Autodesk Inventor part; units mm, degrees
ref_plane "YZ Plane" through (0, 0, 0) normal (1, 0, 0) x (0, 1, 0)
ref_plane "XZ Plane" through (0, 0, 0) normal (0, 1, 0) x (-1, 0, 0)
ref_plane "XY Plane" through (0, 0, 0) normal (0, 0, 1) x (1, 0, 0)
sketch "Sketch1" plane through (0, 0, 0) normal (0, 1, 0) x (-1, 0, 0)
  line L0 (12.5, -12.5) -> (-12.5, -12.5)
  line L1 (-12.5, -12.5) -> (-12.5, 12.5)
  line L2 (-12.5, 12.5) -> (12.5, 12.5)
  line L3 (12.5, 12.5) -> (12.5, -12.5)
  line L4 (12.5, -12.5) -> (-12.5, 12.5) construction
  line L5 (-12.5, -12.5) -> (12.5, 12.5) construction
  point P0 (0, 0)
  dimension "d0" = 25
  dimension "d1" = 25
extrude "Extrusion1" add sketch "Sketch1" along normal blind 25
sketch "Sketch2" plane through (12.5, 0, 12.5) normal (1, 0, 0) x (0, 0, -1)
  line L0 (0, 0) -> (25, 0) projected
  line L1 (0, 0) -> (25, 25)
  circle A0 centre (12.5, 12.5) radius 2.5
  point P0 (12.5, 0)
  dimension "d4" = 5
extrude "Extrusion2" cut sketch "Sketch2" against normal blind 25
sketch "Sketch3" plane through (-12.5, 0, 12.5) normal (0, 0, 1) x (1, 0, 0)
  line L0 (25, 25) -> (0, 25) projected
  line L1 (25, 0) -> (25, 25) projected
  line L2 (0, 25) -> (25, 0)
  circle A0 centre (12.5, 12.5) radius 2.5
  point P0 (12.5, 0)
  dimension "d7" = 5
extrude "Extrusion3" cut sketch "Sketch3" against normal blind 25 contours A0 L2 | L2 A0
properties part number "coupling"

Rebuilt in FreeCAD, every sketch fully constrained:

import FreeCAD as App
import Part
import Sketcher


def add_polygon(sketch, points):
    """Adds a closed chain of lines whose ends are joined by coincident constraints."""
    first, n = sketch.GeometryCount, len(points)
    for a, b in zip(points, points[1:] + points[:1]):
        sketch.addGeometry(Part.LineSegment(App.Vector(*a, 0), App.Vector(*b, 0)), False)
    for i in range(n):
        sketch.addConstraint(Sketcher.Constraint("Coincident", first + i, 2, first + (i + 1) % n, 1))

doc = App.newDocument("Part")
body = doc.addObject("PartDesign::Body", "Body")

# Sketch on XZ plane
sketch1 = doc.addObject("Sketcher::SketchObject", "Sketch")
body.addObject(sketch1)
sketch1.AttachmentSupport = (doc.XZ_Plane, [""])
sketch1.MapMode = "FlatFace"
add_polygon(sketch1, [(12.5, -12.5), (-12.5, -12.5), (-12.5, 12.5), (12.5, 12.5)])  # lines 0-3
sketch1.addConstraint([
    Sketcher.Constraint("Horizontal", 0),
    Sketcher.Constraint("Vertical", 1),
    Sketcher.Constraint("Horizontal", 2),
    Sketcher.Constraint("Vertical", 3),
    Sketcher.Constraint("Symmetric", 0, 2, 2, 2, -1, 1),
    Sketcher.Constraint("Equal", 2, 1),
    Sketcher.Constraint("DistanceX", 0, 2, 0, 1, 25.0),
])
pad1 = doc.addObject("PartDesign::Pad", "Pad")
body.addObject(pad1)
pad1.Profile = sketch1
pad1.Length = 25
pad1.Reversed = True

# Sketch on YZ plane
sketch2 = doc.addObject("Sketcher::SketchObject", "Sketch001")
body.addObject(sketch2)
sketch2.AttachmentSupport = (doc.YZ_Plane, [""])
sketch2.MapMode = "FlatFace"
sketch2.AttachmentOffset = App.Placement(App.Vector(0, 0, 12.5), App.Rotation())
sketch2.addGeometry(Part.Circle(App.Vector(12.5, 0, 0), App.Vector(0, 0, 1), 2.5), False)
sketch2.addConstraint([
    Sketcher.Constraint("PointOnObject", 0, 3, -1),
    Sketcher.Constraint("Diameter", 0, 5.0),
    Sketcher.Constraint("DistanceX", -1, 1, 0, 3, 12.5),
])
pocket1 = doc.addObject("PartDesign::Pocket", "Pocket")
body.addObject(pocket1)
pocket1.Profile = sketch2
pocket1.Length = 25

# Sketch on XY plane
sketch3 = doc.addObject("Sketcher::SketchObject", "Sketch002")
body.addObject(sketch3)
sketch3.AttachmentSupport = (doc.XY_Plane, [""])
sketch3.MapMode = "FlatFace"
sketch3.AttachmentOffset = App.Placement(App.Vector(0, 0, 12.5), App.Rotation())
sketch3.addGeometry(Part.Circle(App.Vector(0, 12.5, 0), App.Vector(0, 0, 1), 2.5), False)
sketch3.addConstraint([
    Sketcher.Constraint("PointOnObject", 0, 3, -2),
    Sketcher.Constraint("Diameter", 0, 5.0),
    Sketcher.Constraint("DistanceY", -1, 1, 0, 3, 12.5),
])
pocket2 = doc.addObject("PartDesign::Pocket", "Pocket001")
body.addObject(pocket2)
pocket2.Profile = sketch3
pocket2.Length = 25

doc.recompute()
